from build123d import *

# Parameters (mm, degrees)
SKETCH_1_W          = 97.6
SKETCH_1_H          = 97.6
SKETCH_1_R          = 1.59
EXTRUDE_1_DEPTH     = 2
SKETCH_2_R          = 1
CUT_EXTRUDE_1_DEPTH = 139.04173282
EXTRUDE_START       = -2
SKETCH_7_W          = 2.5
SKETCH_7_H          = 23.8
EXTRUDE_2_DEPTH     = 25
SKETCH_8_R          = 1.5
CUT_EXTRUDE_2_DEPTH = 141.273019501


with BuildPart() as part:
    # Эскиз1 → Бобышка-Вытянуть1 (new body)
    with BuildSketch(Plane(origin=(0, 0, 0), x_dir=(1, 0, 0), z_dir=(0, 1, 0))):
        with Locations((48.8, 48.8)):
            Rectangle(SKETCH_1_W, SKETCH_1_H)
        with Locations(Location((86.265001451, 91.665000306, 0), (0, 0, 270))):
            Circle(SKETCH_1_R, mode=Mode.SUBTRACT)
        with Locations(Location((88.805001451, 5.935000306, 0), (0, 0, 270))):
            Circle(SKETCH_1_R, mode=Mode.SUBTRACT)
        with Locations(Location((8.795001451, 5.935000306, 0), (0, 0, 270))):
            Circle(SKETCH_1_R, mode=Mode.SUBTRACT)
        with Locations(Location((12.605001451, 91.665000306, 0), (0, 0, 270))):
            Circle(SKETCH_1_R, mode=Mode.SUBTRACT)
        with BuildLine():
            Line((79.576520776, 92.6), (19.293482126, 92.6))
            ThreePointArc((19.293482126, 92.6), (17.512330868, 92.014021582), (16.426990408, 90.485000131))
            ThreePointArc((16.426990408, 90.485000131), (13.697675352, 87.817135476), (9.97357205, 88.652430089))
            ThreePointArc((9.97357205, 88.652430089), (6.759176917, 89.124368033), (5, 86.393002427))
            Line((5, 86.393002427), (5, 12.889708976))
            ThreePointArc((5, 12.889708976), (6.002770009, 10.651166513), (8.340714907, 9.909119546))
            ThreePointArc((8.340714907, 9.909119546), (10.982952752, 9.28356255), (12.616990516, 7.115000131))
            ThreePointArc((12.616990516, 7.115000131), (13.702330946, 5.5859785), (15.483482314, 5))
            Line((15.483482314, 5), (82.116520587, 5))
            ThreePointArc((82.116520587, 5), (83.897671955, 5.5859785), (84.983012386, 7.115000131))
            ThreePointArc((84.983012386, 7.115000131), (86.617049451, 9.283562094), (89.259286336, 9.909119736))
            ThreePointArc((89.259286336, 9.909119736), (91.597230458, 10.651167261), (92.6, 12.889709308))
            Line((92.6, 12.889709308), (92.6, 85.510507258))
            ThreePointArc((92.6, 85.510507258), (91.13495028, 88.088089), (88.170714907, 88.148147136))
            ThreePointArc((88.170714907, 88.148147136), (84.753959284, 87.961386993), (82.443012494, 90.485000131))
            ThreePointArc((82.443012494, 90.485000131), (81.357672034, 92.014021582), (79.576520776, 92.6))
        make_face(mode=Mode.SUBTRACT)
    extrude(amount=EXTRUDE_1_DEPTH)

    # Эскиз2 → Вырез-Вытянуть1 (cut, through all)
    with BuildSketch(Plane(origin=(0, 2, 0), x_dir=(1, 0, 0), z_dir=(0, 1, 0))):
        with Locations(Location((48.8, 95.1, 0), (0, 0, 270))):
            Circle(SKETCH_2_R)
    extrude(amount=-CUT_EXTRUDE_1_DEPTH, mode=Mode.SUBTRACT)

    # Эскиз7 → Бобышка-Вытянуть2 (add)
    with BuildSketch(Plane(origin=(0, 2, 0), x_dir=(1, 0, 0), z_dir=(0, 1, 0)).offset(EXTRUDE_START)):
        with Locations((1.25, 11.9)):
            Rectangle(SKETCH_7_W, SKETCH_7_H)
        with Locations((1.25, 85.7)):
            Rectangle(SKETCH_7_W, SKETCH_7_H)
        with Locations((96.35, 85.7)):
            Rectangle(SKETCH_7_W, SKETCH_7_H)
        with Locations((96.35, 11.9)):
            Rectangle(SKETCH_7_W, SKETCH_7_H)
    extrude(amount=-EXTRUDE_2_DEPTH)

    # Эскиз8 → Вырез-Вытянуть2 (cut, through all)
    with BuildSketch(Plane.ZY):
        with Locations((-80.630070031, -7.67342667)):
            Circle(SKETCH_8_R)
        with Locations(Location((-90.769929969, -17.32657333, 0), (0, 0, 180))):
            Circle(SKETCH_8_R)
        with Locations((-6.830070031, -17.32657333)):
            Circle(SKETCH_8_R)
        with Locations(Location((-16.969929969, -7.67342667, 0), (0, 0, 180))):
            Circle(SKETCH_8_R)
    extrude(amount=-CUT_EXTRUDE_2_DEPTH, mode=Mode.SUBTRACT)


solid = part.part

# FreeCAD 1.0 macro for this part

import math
import FreeCAD as App
import Part
import Sketcher
from FreeCAD import Vector
Q = App.Units.Quantity

doc = App.newDocument("Part")
body = doc.addObject("PartDesign::Body", "Body")

# Sketch on XZ plane
sketch1 = body.newObject("Sketcher::SketchObject", "Sketch")
sketch1.AttachmentSupport = (doc.getObject("XZ_Plane"), [""])
sketch1.MapMode = "FlatFace"
sketch1.addGeometry(Part.LineSegment(Vector(0, -97.6, 0), Vector(0, 0, 0)), False)
sketch1.addGeometry(Part.LineSegment(Vector(0, 0, 0), Vector(97.6, 0, 0)), False)
sketch1.addGeometry(Part.LineSegment(Vector(97.6, 0, 0), Vector(97.6, -97.6, 0)), False)
sketch1.addGeometry(Part.LineSegment(Vector(97.6, -97.6, 0), Vector(0, -97.6, 0)), False)
sketch1.addGeometry(Part.Circle(Vector(8.8, -5.9, 0), Vector(0, 0, 1), 1.6), False)
sketch1.addGeometry(Part.Circle(Vector(88.8, -5.9, 0), Vector(0, 0, 1), 1.6), False)
sketch1.addGeometry(Part.LineSegment(Vector(19.3, -92.6, 0), Vector(79.6, -92.6, 0)), False)
sketch1.addGeometry(Part.ArcOfCircle(Part.Circle(Vector(79.6, -89.6, 0), Vector(0, 0, 1), 3), math.radians(-90), math.radians(-17)), False)
sketch1.addGeometry(Part.ArcOfCircle(Part.Circle(Vector(86.3, -91.7, 0), Vector(0, 0, 1), 4), math.radians(62), math.radians(163)), False)
sketch1.addGeometry(Part.ArcOfCircle(Part.Circle(Vector(89.6, -85.5, 0), Vector(0, 0, 1), 3), math.radians(-118), math.radians(0)), False)
sketch1.addGeometry(Part.LineSegment(Vector(92.6, -85.5, 0), Vector(92.6, -12.9, 0)), False)
sketch1.addGeometry(Part.ArcOfCircle(Part.Circle(Vector(89.6, -12.9, 0), Vector(0, 0, 1), 3), math.radians(0), math.radians(97)), False)
sketch1.addGeometry(Part.ArcOfCircle(Part.Circle(Vector(88.8, -5.9, 0), Vector(0, 0, 1), 4), math.radians(-163), math.radians(-83)), False)
sketch1.addGeometry(Part.ArcOfCircle(Part.Circle(Vector(82.1, -8, 0), Vector(0, 0, 1), 3), math.radians(17), math.radians(90)), False)
sketch1.addGeometry(Part.LineSegment(Vector(82.1, -5, 0), Vector(15.5, -5, 0)), False)
sketch1.addGeometry(Part.ArcOfCircle(Part.Circle(Vector(15.5, -8, 0), Vector(0, 0, 1), 3), math.radians(90), math.radians(163)), False)
sketch1.addGeometry(Part.ArcOfCircle(Part.Circle(Vector(8.8, -5.9, 0), Vector(0, 0, 1), 4), math.radians(-97), math.radians(-17)), False)
sketch1.addGeometry(Part.ArcOfCircle(Part.Circle(Vector(8, -12.9, 0), Vector(0, 0, 1), 3), math.radians(83), math.radians(180)), False)
sketch1.addGeometry(Part.LineSegment(Vector(5, -12.9, 0), Vector(5, -86.4, 0)), False)
sketch1.addGeometry(Part.ArcOfCircle(Part.Circle(Vector(8, -86.4, 0), Vector(0, 0, 1), 3), math.radians(180), math.radians(311)), False)
sketch1.addGeometry(Part.ArcOfCircle(Part.Circle(Vector(12.6, -91.7, 0), Vector(0, 0, 1), 4), math.radians(17), math.radians(131)), False)
sketch1.addGeometry(Part.ArcOfCircle(Part.Circle(Vector(19.3, -89.6, 0), Vector(0, 0, 1), 3), math.radians(-163), math.radians(-90)), False)
sketch1.addGeometry(Part.Circle(Vector(12.6, -91.7, 0), Vector(0, 0, 1), 1.6), False)
sketch1.addGeometry(Part.Circle(Vector(86.3, -91.7, 0), Vector(0, 0, 1), 1.6), False)
sketch1.addConstraint(Sketcher.Constraint("Coincident", 0, 2, 1, 1))
sketch1.addConstraint(Sketcher.Constraint("Coincident", 1, 2, 2, 1))
sketch1.addConstraint(Sketcher.Constraint("Coincident", 2, 2, 3, 1))
sketch1.addConstraint(Sketcher.Constraint("Coincident", 3, 2, 0, 1))
sketch1.addConstraint(Sketcher.Constraint("Tangent", 6, 2, 7, 1))
sketch1.addConstraint(Sketcher.Constraint("Tangent", 7, 2, 8, 2))
sketch1.addConstraint(Sketcher.Constraint("Tangent", 8, 1, 9, 1))
sketch1.addConstraint(Sketcher.Constraint("Tangent", 9, 2, 10, 1))
sketch1.addConstraint(Sketcher.Constraint("Tangent", 10, 2, 11, 1))
sketch1.addConstraint(Sketcher.Constraint("Tangent", 11, 2, 12, 2))
sketch1.addConstraint(Sketcher.Constraint("Tangent", 12, 1, 13, 1))
sketch1.addConstraint(Sketcher.Constraint("Tangent", 13, 2, 14, 1))
sketch1.addConstraint(Sketcher.Constraint("Tangent", 14, 2, 15, 1))
sketch1.addConstraint(Sketcher.Constraint("Tangent", 15, 2, 16, 2))
sketch1.addConstraint(Sketcher.Constraint("Tangent", 16, 1, 17, 1))
sketch1.addConstraint(Sketcher.Constraint("Tangent", 17, 2, 18, 1))
sketch1.addConstraint(Sketcher.Constraint("Tangent", 18, 2, 19, 1))
sketch1.addConstraint(Sketcher.Constraint("Tangent", 19, 2, 20, 2))
sketch1.addConstraint(Sketcher.Constraint("Tangent", 20, 1, 21, 1))
sketch1.addConstraint(Sketcher.Constraint("Tangent", 21, 2, 6, 1))
sketch1.addConstraint(Sketcher.Constraint("Vertical", 0))
sketch1.addConstraint(Sketcher.Constraint("Horizontal", 1))
sketch1.addConstraint(Sketcher.Constraint("Vertical", 2))
sketch1.addConstraint(Sketcher.Constraint("Horizontal", 3))
sketch1.addConstraint(Sketcher.Constraint("Horizontal", 6))
sketch1.addConstraint(Sketcher.Constraint("Vertical", 10))
sketch1.addConstraint(Sketcher.Constraint("Horizontal", 14))
sketch1.addConstraint(Sketcher.Constraint("Vertical", 18))
sketch1.addConstraint(Sketcher.Constraint("Coincident", 0, 2, -1, 1))
sketch1.addConstraint(Sketcher.Constraint("Coincident", 12, 3, 5, 3))
sketch1.addConstraint(Sketcher.Constraint("Coincident", 16, 3, 4, 3))
sketch1.addConstraint(Sketcher.Constraint("Coincident", 22, 3, 20, 3))
sketch1.addConstraint(Sketcher.Constraint("Coincident", 23, 3, 8, 3))
sketch1.addConstraint(Sketcher.Constraint("Equal", 4, 5))
sketch1.addConstraint(Sketcher.Constraint("Equal", 7, 9))
sketch1.addConstraint(Sketcher.Constraint("Equal", 9, 11))
sketch1.addConstraint(Sketcher.Constraint("Equal", 8, 12))
sketch1.addConstraint(Sketcher.Constraint("Equal", 11, 13))
sketch1.addConstraint(Sketcher.Constraint("Equal", 13, 15))
sketch1.addConstraint(Sketcher.Constraint("Equal", 12, 16))
sketch1.addConstraint(Sketcher.Constraint("Equal", 15, 17))
sketch1.addConstraint(Sketcher.Constraint("Equal", 17, 19))
sketch1.addConstraint(Sketcher.Constraint("Equal", 16, 20))
sketch1.addConstraint(Sketcher.Constraint("Equal", 19, 21))
sketch1.addConstraint(Sketcher.Constraint("Equal", 5, 22))
sketch1.addConstraint(Sketcher.Constraint("Equal", 22, 23))
sketch1.addConstraint(Sketcher.Constraint("Horizontal", 4, 3, 5, 3))
sketch1.addConstraint(Sketcher.Constraint("Horizontal", 11, 3, 17, 3))
sketch1.addConstraint(Sketcher.Constraint("Horizontal", 8, 3, 20, 3))
sketch1.addConstraint(Sketcher.Constraint("Equal", 3, 0))
sketch1.addConstraint(Sketcher.Constraint("Radius", 7, Q("3 mm")))
sketch1.addConstraint(Sketcher.Constraint("Radius", 8, Q("4 mm")))
sketch1.addConstraint(Sketcher.Constraint("Diameter", 4, Q("3.18 mm")))
sketch1.addConstraint(Sketcher.Constraint("DistanceX", 1, 1, 1, 2, Q("97.6 mm")))
sketch1.addConstraint(Sketcher.Constraint("DistanceY", 13, 3, -1, 1, Q("8 mm")))
sketch1.addConstraint(Sketcher.Constraint("DistanceX", -1, 1, 17, 3, Q("8 mm")))
sketch1.addConstraint(Sketcher.Constraint("DistanceX", 11, 3, 1, 2, Q("8 mm")))
sketch1.addConstraint(Sketcher.Constraint("DistanceY", 2, 2, 7, 3, Q("8 mm")))
sketch1.addConstraint(Sketcher.Constraint("DistanceX", 4, 3, 5, 3, Q("80.01 mm")))
sketch1.addConstraint(Sketcher.Constraint("DistanceX", 8, 3, 5, 3, Q("2.54 mm")))
sketch1.addConstraint(Sketcher.Constraint("DistanceY", 8, 3, 5, 3, Q("85.73 mm")))
sketch1.addConstraint(Sketcher.Constraint("DistanceX", 20, 3, 8, 3, Q("73.66 mm")))
sketch1.addConstraint(Sketcher.Constraint("DistanceY", 8, 3, 7, 2, Q("1.18 mm")))
pad1 = body.newObject("PartDesign::Pad", "Pad")
pad1.Profile = sketch1
pad1.Length = 2
pad1.Reversed = True

# Sketch on XZ plane
sketch2 = body.newObject("Sketcher::SketchObject", "Sketch001")
sketch2.AttachmentSupport = (doc.getObject("XZ_Plane"), [""])
sketch2.MapMode = "FlatFace"
sketch2.AttachmentOffset = App.Placement(Vector(0, 0, -2), App.Rotation())
sketch2.addGeometry(Part.Circle(Vector(48.8, -95.1, 0), Vector(0, 0, 1), 1), False)
sketch2.addConstraint(Sketcher.Constraint("Diameter", 0, Q("2 mm")))
sketch2.addConstraint(Sketcher.Constraint("DistanceX", -1, 1, 0, 3, Q("48.8 mm")))
sketch2.addConstraint(Sketcher.Constraint("DistanceY", 0, 3, -1, 1, Q("95.1 mm")))
pocket1 = body.newObject("PartDesign::Pocket", "Pocket")
pocket1.Profile = sketch2
pocket1.Type = "ThroughAll"
pocket1.Reversed = True

# Sketch on XZ plane
sketch3 = body.newObject("Sketcher::SketchObject", "Sketch002")
sketch3.AttachmentSupport = (doc.getObject("XZ_Plane"), [""])
sketch3.MapMode = "FlatFace"
sketch3.addGeometry(Part.LineSegment(Vector(0, -23.8, 0), Vector(0, 0, 0)), False)
sketch3.addGeometry(Part.LineSegment(Vector(0, 0, 0), Vector(2.5, 0, 0)), False)
sketch3.addGeometry(Part.LineSegment(Vector(2.5, 0, 0), Vector(2.5, -23.8, 0)), False)
sketch3.addGeometry(Part.LineSegment(Vector(2.5, -23.8, 0), Vector(0, -23.8, 0)), False)
sketch3.addGeometry(Part.LineSegment(Vector(0, -97.6, 0), Vector(0, -73.8, 0)), False)
sketch3.addGeometry(Part.LineSegment(Vector(0, -73.8, 0), Vector(2.5, -73.8, 0)), False)
sketch3.addGeometry(Part.LineSegment(Vector(2.5, -73.8, 0), Vector(2.5, -97.6, 0)), False)
sketch3.addGeometry(Part.LineSegment(Vector(2.5, -97.6, 0), Vector(0, -97.6, 0)), False)
sketch3.addGeometry(Part.LineSegment(Vector(95.1, -97.6, 0), Vector(95.1, -73.8, 0)), False)
sketch3.addGeometry(Part.LineSegment(Vector(95.1, -73.8, 0), Vector(97.6, -73.8, 0)), False)
sketch3.addGeometry(Part.LineSegment(Vector(97.6, -73.8, 0), Vector(97.6, -97.6, 0)), False)
sketch3.addGeometry(Part.LineSegment(Vector(97.6, -97.6, 0), Vector(95.1, -97.6, 0)), False)
sketch3.addGeometry(Part.LineSegment(Vector(95.1, -23.8, 0), Vector(95.1, 0, 0)), False)
sketch3.addGeometry(Part.LineSegment(Vector(95.1, 0, 0), Vector(97.6, 0, 0)), False)
sketch3.addGeometry(Part.LineSegment(Vector(97.6, 0, 0), Vector(97.6, -23.8, 0)), False)
sketch3.addGeometry(Part.LineSegment(Vector(97.6, -23.8, 0), Vector(95.1, -23.8, 0)), False)
sketch3.addConstraint(Sketcher.Constraint("Coincident", 0, 2, 1, 1))
sketch3.addConstraint(Sketcher.Constraint("Coincident", 1, 2, 2, 1))
sketch3.addConstraint(Sketcher.Constraint("Coincident", 2, 2, 3, 1))
sketch3.addConstraint(Sketcher.Constraint("Coincident", 3, 2, 0, 1))
sketch3.addConstraint(Sketcher.Constraint("Coincident", 4, 2, 5, 1))
sketch3.addConstraint(Sketcher.Constraint("Coincident", 5, 2, 6, 1))
sketch3.addConstraint(Sketcher.Constraint("Coincident", 6, 2, 7, 1))
sketch3.addConstraint(Sketcher.Constraint("Coincident", 7, 2, 4, 1))
sketch3.addConstraint(Sketcher.Constraint("Coincident", 8, 2, 9, 1))
sketch3.addConstraint(Sketcher.Constraint("Coincident", 9, 2, 10, 1))
sketch3.addConstraint(Sketcher.Constraint("Coincident", 10, 2, 11, 1))
sketch3.addConstraint(Sketcher.Constraint("Coincident", 11, 2, 8, 1))
sketch3.addConstraint(Sketcher.Constraint("Coincident", 12, 2, 13, 1))
sketch3.addConstraint(Sketcher.Constraint("Coincident", 13, 2, 14, 1))
sketch3.addConstraint(Sketcher.Constraint("Coincident", 14, 2, 15, 1))
sketch3.addConstraint(Sketcher.Constraint("Coincident", 15, 2, 12, 1))
sketch3.addConstraint(Sketcher.Constraint("Vertical", 0))
sketch3.addConstraint(Sketcher.Constraint("Horizontal", 1))
sketch3.addConstraint(Sketcher.Constraint("Vertical", 2))
sketch3.addConstraint(Sketcher.Constraint("Horizontal", 3))
sketch3.addConstraint(Sketcher.Constraint("Vertical", 4))
sketch3.addConstraint(Sketcher.Constraint("Horizontal", 5))
sketch3.addConstraint(Sketcher.Constraint("Vertical", 6))
sketch3.addConstraint(Sketcher.Constraint("Horizontal", 7))
sketch3.addConstraint(Sketcher.Constraint("Vertical", 8))
sketch3.addConstraint(Sketcher.Constraint("Horizontal", 9))
sketch3.addConstraint(Sketcher.Constraint("Vertical", 10))
sketch3.addConstraint(Sketcher.Constraint("Horizontal", 11))
sketch3.addConstraint(Sketcher.Constraint("Vertical", 12))
sketch3.addConstraint(Sketcher.Constraint("Horizontal", 13))
sketch3.addConstraint(Sketcher.Constraint("Vertical", 14))
sketch3.addConstraint(Sketcher.Constraint("Horizontal", 15))
sketch3.addConstraint(Sketcher.Constraint("Coincident", 0, 2, -1, 1))
sketch3.addConstraint(Sketcher.Constraint("PointOnObject", 4, 2, -2))
sketch3.addConstraint(Sketcher.Constraint("PointOnObject", 12, 2, -1))
sketch3.addConstraint(Sketcher.Constraint("Horizontal", 5, 2, 8, 2))
sketch3.addConstraint(Sketcher.Constraint("Horizontal", 7, 2, 10, 2))
sketch3.addConstraint(Sketcher.Constraint("Horizontal", 3, 2, 14, 2))
sketch3.addConstraint(Sketcher.Constraint("Vertical", 2, 2, 5, 2))
sketch3.addConstraint(Sketcher.Constraint("Vertical", 11, 2, 12, 2))
sketch3.addConstraint(Sketcher.Constraint("Vertical", 10, 2, 13, 2))
sketch3.addConstraint(Sketcher.Constraint("Equal", 7, 9))
sketch3.addConstraint(Sketcher.Constraint("Equal", 2, 4))
sketch3.addConstraint(Sketcher.Constraint("DistanceX", 1, 1, 1, 2, Q("2.5 mm")))
sketch3.addConstraint(Sketcher.Constraint("DistanceY", 0, 1, 0, 2, Q("23.8 mm")))
sketch3.addConstraint(Sketcher.Constraint("DistanceY", 4, 2, 3, 2, Q("50 mm")))
sketch3.addConstraint(Sketcher.Constraint("DistanceX", -1, 1, 8, 2, Q("95.1 mm")))
pad2 = body.newObject("PartDesign::Pad", "Pad001")
pad2.Profile = sketch3
pad2.Length = 25

# Sketch on YZ plane
sketch4 = body.newObject("Sketcher::SketchObject", "Sketch003")
sketch4.AttachmentSupport = (doc.getObject("YZ_Plane"), [""])
sketch4.MapMode = "FlatFace"
sketch4.addGeometry(Part.Circle(Vector(-7.7, -80.6, 0), Vector(0, 0, 1), 1.5), False)
sketch4.addGeometry(Part.Circle(Vector(-17.3, -90.8, 0), Vector(0, 0, 1), 1.5), False)
sketch4.addGeometry(Part.Circle(Vector(-17.3, -6.8, 0), Vector(0, 0, 1), 1.5), False)
sketch4.addGeometry(Part.Circle(Vector(-7.7, -17, 0), Vector(0, 0, 1), 1.5), False)
sketch4.addConstraint(Sketcher.Constraint("Equal", 0, 1))
sketch4.addConstraint(Sketcher.Constraint("Equal", 1, 2))
sketch4.addConstraint(Sketcher.Constraint("Equal", 2, 3))
sketch4.addConstraint(Sketcher.Constraint("Vertical", 1, 3, 2, 3))
sketch4.addConstraint(Sketcher.Constraint("Vertical", 0, 3, 3, 3))
sketch4.addConstraint(Sketcher.Constraint("Diameter", 0, Q("3 mm")))
sketch4.addConstraint(Sketcher.Constraint("DistanceY", 0, 3, 2, 3, Q("73.8 mm")))
sketch4.addConstraint(Sketcher.Constraint("DistanceY", 1, 3, 3, 3, Q("73.8 mm")))
sketch4.addConstraint(Sketcher.Constraint("DistanceY", 0, 3, -1, 1, Q("80.63007 mm")))
sketch4.addConstraint(Sketcher.Constraint("DistanceY", 1, 3, -1, 1, Q("90.76993 mm")))
sketch4.addConstraint(Sketcher.Constraint("DistanceX", 0, 3, -1, 1, Q("7.673427 mm")))
sketch4.addConstraint(Sketcher.Constraint("DistanceX", 1, 3, -1, 1, Q("17.326573 mm")))
pocket2 = body.newObject("PartDesign::Pocket", "Pocket001")
pocket2.Profile = sketch4
pocket2.Type = "ThroughAll"
pocket2.Reversed = True

doc.recompute()
